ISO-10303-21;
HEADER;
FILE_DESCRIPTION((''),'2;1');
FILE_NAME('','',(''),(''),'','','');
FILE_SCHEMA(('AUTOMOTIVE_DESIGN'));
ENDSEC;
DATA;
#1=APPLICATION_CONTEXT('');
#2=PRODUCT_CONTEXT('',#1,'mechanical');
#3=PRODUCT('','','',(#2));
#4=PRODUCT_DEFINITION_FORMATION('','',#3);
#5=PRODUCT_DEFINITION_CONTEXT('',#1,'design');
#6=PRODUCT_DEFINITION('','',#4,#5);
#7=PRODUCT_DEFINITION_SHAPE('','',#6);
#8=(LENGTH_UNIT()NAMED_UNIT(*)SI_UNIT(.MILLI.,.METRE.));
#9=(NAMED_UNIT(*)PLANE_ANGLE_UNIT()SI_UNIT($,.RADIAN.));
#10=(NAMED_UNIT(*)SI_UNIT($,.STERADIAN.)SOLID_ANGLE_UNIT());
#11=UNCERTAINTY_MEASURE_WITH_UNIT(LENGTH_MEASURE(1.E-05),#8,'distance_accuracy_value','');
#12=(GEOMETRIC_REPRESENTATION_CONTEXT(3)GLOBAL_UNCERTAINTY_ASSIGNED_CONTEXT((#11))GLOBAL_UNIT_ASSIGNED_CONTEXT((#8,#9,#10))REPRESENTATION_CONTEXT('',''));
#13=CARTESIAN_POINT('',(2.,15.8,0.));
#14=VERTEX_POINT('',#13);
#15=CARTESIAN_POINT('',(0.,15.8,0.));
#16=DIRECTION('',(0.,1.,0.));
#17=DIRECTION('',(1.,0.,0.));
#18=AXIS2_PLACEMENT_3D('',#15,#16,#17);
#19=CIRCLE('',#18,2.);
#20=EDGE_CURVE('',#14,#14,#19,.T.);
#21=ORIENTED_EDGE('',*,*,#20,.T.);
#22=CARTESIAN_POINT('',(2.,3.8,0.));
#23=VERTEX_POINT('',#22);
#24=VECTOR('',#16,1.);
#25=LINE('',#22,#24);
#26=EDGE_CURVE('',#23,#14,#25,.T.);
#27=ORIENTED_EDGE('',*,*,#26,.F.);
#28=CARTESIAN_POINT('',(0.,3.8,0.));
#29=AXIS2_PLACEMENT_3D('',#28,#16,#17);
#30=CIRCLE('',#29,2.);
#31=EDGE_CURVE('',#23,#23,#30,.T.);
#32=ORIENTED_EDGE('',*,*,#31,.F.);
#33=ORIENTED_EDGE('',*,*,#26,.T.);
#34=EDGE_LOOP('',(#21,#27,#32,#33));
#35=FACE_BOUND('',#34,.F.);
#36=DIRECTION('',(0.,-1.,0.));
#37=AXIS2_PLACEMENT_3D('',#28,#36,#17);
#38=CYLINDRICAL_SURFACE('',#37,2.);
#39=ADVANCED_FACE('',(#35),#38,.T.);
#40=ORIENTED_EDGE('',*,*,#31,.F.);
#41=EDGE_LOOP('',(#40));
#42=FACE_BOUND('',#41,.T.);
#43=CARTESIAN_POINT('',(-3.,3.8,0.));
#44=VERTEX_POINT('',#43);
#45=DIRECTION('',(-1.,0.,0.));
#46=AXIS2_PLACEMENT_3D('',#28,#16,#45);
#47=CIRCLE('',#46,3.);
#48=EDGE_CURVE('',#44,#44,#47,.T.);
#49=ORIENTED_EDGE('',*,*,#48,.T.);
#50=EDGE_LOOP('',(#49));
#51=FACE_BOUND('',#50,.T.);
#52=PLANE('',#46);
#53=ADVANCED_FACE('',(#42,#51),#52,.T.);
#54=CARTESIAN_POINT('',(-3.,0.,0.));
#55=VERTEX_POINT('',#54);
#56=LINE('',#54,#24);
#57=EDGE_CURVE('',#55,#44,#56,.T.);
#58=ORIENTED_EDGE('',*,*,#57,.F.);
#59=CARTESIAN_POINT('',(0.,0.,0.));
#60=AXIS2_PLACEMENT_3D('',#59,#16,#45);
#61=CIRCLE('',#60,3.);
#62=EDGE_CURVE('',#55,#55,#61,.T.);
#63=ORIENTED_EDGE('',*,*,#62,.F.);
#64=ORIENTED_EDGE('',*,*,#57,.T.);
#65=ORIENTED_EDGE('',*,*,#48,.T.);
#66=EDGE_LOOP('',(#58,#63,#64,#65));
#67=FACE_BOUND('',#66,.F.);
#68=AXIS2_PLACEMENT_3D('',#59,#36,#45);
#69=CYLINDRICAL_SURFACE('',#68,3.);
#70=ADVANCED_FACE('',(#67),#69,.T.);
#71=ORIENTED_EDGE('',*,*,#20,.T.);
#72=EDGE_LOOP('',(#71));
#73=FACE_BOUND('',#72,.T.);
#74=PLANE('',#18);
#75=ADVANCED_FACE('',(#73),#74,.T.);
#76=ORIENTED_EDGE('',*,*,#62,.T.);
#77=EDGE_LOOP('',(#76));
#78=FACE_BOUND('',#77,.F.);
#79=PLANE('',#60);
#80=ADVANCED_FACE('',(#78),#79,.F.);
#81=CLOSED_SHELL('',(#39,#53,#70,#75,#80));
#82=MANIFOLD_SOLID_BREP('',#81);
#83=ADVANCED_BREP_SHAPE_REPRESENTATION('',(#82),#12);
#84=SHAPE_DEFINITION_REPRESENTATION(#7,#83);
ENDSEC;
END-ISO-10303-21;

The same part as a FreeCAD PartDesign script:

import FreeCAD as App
import Part
import Sketcher
from FreeCAD import Vector
Q = App.Units.Quantity

doc = App.newDocument("Part")
body = doc.addObject("PartDesign::Body", "Body")

# Sketch on XZ plane
sketch1 = body.newObject("Sketcher::SketchObject", "Sketch")
sketch1.AttachmentSupport = (doc.getObject("XZ_Plane"), [""])
sketch1.MapMode = "FlatFace"
sketch1.addGeometry(Part.Circle(Vector(0, 0, 0), Vector(0, 0, 1), 3), False)
sketch1.addConstraint(Sketcher.Constraint("Coincident", 0, 3, -1, 1))
sketch1.addConstraint(Sketcher.Constraint("Diameter", 0, Q("6 mm")))
pad1 = body.newObject("PartDesign::Pad", "Pad")
pad1.Profile = sketch1
pad1.Length = 3.8
pad1.Reversed = True

# Sketch on XZ plane
sketch2 = body.newObject("Sketcher::SketchObject", "Sketch001")
sketch2.AttachmentSupport = (doc.getObject("XZ_Plane"), [""])
sketch2.MapMode = "FlatFace"
sketch2.AttachmentOffset = App.Placement(Vector(0, 0, -3.8), App.Rotation())
sketch2.addGeometry(Part.Circle(Vector(0, 0, 0), Vector(0, 0, 1), 2), False)
sketch2.addConstraint(Sketcher.Constraint("Coincident", 0, 3, -1, 1))
sketch2.addConstraint(Sketcher.Constraint("Diameter", 0, Q("4 mm")))
pad2 = body.newObject("PartDesign::Pad", "Pad001")
pad2.Profile = sketch2
pad2.Length = 12
pad2.Reversed = True

doc.recompute()
